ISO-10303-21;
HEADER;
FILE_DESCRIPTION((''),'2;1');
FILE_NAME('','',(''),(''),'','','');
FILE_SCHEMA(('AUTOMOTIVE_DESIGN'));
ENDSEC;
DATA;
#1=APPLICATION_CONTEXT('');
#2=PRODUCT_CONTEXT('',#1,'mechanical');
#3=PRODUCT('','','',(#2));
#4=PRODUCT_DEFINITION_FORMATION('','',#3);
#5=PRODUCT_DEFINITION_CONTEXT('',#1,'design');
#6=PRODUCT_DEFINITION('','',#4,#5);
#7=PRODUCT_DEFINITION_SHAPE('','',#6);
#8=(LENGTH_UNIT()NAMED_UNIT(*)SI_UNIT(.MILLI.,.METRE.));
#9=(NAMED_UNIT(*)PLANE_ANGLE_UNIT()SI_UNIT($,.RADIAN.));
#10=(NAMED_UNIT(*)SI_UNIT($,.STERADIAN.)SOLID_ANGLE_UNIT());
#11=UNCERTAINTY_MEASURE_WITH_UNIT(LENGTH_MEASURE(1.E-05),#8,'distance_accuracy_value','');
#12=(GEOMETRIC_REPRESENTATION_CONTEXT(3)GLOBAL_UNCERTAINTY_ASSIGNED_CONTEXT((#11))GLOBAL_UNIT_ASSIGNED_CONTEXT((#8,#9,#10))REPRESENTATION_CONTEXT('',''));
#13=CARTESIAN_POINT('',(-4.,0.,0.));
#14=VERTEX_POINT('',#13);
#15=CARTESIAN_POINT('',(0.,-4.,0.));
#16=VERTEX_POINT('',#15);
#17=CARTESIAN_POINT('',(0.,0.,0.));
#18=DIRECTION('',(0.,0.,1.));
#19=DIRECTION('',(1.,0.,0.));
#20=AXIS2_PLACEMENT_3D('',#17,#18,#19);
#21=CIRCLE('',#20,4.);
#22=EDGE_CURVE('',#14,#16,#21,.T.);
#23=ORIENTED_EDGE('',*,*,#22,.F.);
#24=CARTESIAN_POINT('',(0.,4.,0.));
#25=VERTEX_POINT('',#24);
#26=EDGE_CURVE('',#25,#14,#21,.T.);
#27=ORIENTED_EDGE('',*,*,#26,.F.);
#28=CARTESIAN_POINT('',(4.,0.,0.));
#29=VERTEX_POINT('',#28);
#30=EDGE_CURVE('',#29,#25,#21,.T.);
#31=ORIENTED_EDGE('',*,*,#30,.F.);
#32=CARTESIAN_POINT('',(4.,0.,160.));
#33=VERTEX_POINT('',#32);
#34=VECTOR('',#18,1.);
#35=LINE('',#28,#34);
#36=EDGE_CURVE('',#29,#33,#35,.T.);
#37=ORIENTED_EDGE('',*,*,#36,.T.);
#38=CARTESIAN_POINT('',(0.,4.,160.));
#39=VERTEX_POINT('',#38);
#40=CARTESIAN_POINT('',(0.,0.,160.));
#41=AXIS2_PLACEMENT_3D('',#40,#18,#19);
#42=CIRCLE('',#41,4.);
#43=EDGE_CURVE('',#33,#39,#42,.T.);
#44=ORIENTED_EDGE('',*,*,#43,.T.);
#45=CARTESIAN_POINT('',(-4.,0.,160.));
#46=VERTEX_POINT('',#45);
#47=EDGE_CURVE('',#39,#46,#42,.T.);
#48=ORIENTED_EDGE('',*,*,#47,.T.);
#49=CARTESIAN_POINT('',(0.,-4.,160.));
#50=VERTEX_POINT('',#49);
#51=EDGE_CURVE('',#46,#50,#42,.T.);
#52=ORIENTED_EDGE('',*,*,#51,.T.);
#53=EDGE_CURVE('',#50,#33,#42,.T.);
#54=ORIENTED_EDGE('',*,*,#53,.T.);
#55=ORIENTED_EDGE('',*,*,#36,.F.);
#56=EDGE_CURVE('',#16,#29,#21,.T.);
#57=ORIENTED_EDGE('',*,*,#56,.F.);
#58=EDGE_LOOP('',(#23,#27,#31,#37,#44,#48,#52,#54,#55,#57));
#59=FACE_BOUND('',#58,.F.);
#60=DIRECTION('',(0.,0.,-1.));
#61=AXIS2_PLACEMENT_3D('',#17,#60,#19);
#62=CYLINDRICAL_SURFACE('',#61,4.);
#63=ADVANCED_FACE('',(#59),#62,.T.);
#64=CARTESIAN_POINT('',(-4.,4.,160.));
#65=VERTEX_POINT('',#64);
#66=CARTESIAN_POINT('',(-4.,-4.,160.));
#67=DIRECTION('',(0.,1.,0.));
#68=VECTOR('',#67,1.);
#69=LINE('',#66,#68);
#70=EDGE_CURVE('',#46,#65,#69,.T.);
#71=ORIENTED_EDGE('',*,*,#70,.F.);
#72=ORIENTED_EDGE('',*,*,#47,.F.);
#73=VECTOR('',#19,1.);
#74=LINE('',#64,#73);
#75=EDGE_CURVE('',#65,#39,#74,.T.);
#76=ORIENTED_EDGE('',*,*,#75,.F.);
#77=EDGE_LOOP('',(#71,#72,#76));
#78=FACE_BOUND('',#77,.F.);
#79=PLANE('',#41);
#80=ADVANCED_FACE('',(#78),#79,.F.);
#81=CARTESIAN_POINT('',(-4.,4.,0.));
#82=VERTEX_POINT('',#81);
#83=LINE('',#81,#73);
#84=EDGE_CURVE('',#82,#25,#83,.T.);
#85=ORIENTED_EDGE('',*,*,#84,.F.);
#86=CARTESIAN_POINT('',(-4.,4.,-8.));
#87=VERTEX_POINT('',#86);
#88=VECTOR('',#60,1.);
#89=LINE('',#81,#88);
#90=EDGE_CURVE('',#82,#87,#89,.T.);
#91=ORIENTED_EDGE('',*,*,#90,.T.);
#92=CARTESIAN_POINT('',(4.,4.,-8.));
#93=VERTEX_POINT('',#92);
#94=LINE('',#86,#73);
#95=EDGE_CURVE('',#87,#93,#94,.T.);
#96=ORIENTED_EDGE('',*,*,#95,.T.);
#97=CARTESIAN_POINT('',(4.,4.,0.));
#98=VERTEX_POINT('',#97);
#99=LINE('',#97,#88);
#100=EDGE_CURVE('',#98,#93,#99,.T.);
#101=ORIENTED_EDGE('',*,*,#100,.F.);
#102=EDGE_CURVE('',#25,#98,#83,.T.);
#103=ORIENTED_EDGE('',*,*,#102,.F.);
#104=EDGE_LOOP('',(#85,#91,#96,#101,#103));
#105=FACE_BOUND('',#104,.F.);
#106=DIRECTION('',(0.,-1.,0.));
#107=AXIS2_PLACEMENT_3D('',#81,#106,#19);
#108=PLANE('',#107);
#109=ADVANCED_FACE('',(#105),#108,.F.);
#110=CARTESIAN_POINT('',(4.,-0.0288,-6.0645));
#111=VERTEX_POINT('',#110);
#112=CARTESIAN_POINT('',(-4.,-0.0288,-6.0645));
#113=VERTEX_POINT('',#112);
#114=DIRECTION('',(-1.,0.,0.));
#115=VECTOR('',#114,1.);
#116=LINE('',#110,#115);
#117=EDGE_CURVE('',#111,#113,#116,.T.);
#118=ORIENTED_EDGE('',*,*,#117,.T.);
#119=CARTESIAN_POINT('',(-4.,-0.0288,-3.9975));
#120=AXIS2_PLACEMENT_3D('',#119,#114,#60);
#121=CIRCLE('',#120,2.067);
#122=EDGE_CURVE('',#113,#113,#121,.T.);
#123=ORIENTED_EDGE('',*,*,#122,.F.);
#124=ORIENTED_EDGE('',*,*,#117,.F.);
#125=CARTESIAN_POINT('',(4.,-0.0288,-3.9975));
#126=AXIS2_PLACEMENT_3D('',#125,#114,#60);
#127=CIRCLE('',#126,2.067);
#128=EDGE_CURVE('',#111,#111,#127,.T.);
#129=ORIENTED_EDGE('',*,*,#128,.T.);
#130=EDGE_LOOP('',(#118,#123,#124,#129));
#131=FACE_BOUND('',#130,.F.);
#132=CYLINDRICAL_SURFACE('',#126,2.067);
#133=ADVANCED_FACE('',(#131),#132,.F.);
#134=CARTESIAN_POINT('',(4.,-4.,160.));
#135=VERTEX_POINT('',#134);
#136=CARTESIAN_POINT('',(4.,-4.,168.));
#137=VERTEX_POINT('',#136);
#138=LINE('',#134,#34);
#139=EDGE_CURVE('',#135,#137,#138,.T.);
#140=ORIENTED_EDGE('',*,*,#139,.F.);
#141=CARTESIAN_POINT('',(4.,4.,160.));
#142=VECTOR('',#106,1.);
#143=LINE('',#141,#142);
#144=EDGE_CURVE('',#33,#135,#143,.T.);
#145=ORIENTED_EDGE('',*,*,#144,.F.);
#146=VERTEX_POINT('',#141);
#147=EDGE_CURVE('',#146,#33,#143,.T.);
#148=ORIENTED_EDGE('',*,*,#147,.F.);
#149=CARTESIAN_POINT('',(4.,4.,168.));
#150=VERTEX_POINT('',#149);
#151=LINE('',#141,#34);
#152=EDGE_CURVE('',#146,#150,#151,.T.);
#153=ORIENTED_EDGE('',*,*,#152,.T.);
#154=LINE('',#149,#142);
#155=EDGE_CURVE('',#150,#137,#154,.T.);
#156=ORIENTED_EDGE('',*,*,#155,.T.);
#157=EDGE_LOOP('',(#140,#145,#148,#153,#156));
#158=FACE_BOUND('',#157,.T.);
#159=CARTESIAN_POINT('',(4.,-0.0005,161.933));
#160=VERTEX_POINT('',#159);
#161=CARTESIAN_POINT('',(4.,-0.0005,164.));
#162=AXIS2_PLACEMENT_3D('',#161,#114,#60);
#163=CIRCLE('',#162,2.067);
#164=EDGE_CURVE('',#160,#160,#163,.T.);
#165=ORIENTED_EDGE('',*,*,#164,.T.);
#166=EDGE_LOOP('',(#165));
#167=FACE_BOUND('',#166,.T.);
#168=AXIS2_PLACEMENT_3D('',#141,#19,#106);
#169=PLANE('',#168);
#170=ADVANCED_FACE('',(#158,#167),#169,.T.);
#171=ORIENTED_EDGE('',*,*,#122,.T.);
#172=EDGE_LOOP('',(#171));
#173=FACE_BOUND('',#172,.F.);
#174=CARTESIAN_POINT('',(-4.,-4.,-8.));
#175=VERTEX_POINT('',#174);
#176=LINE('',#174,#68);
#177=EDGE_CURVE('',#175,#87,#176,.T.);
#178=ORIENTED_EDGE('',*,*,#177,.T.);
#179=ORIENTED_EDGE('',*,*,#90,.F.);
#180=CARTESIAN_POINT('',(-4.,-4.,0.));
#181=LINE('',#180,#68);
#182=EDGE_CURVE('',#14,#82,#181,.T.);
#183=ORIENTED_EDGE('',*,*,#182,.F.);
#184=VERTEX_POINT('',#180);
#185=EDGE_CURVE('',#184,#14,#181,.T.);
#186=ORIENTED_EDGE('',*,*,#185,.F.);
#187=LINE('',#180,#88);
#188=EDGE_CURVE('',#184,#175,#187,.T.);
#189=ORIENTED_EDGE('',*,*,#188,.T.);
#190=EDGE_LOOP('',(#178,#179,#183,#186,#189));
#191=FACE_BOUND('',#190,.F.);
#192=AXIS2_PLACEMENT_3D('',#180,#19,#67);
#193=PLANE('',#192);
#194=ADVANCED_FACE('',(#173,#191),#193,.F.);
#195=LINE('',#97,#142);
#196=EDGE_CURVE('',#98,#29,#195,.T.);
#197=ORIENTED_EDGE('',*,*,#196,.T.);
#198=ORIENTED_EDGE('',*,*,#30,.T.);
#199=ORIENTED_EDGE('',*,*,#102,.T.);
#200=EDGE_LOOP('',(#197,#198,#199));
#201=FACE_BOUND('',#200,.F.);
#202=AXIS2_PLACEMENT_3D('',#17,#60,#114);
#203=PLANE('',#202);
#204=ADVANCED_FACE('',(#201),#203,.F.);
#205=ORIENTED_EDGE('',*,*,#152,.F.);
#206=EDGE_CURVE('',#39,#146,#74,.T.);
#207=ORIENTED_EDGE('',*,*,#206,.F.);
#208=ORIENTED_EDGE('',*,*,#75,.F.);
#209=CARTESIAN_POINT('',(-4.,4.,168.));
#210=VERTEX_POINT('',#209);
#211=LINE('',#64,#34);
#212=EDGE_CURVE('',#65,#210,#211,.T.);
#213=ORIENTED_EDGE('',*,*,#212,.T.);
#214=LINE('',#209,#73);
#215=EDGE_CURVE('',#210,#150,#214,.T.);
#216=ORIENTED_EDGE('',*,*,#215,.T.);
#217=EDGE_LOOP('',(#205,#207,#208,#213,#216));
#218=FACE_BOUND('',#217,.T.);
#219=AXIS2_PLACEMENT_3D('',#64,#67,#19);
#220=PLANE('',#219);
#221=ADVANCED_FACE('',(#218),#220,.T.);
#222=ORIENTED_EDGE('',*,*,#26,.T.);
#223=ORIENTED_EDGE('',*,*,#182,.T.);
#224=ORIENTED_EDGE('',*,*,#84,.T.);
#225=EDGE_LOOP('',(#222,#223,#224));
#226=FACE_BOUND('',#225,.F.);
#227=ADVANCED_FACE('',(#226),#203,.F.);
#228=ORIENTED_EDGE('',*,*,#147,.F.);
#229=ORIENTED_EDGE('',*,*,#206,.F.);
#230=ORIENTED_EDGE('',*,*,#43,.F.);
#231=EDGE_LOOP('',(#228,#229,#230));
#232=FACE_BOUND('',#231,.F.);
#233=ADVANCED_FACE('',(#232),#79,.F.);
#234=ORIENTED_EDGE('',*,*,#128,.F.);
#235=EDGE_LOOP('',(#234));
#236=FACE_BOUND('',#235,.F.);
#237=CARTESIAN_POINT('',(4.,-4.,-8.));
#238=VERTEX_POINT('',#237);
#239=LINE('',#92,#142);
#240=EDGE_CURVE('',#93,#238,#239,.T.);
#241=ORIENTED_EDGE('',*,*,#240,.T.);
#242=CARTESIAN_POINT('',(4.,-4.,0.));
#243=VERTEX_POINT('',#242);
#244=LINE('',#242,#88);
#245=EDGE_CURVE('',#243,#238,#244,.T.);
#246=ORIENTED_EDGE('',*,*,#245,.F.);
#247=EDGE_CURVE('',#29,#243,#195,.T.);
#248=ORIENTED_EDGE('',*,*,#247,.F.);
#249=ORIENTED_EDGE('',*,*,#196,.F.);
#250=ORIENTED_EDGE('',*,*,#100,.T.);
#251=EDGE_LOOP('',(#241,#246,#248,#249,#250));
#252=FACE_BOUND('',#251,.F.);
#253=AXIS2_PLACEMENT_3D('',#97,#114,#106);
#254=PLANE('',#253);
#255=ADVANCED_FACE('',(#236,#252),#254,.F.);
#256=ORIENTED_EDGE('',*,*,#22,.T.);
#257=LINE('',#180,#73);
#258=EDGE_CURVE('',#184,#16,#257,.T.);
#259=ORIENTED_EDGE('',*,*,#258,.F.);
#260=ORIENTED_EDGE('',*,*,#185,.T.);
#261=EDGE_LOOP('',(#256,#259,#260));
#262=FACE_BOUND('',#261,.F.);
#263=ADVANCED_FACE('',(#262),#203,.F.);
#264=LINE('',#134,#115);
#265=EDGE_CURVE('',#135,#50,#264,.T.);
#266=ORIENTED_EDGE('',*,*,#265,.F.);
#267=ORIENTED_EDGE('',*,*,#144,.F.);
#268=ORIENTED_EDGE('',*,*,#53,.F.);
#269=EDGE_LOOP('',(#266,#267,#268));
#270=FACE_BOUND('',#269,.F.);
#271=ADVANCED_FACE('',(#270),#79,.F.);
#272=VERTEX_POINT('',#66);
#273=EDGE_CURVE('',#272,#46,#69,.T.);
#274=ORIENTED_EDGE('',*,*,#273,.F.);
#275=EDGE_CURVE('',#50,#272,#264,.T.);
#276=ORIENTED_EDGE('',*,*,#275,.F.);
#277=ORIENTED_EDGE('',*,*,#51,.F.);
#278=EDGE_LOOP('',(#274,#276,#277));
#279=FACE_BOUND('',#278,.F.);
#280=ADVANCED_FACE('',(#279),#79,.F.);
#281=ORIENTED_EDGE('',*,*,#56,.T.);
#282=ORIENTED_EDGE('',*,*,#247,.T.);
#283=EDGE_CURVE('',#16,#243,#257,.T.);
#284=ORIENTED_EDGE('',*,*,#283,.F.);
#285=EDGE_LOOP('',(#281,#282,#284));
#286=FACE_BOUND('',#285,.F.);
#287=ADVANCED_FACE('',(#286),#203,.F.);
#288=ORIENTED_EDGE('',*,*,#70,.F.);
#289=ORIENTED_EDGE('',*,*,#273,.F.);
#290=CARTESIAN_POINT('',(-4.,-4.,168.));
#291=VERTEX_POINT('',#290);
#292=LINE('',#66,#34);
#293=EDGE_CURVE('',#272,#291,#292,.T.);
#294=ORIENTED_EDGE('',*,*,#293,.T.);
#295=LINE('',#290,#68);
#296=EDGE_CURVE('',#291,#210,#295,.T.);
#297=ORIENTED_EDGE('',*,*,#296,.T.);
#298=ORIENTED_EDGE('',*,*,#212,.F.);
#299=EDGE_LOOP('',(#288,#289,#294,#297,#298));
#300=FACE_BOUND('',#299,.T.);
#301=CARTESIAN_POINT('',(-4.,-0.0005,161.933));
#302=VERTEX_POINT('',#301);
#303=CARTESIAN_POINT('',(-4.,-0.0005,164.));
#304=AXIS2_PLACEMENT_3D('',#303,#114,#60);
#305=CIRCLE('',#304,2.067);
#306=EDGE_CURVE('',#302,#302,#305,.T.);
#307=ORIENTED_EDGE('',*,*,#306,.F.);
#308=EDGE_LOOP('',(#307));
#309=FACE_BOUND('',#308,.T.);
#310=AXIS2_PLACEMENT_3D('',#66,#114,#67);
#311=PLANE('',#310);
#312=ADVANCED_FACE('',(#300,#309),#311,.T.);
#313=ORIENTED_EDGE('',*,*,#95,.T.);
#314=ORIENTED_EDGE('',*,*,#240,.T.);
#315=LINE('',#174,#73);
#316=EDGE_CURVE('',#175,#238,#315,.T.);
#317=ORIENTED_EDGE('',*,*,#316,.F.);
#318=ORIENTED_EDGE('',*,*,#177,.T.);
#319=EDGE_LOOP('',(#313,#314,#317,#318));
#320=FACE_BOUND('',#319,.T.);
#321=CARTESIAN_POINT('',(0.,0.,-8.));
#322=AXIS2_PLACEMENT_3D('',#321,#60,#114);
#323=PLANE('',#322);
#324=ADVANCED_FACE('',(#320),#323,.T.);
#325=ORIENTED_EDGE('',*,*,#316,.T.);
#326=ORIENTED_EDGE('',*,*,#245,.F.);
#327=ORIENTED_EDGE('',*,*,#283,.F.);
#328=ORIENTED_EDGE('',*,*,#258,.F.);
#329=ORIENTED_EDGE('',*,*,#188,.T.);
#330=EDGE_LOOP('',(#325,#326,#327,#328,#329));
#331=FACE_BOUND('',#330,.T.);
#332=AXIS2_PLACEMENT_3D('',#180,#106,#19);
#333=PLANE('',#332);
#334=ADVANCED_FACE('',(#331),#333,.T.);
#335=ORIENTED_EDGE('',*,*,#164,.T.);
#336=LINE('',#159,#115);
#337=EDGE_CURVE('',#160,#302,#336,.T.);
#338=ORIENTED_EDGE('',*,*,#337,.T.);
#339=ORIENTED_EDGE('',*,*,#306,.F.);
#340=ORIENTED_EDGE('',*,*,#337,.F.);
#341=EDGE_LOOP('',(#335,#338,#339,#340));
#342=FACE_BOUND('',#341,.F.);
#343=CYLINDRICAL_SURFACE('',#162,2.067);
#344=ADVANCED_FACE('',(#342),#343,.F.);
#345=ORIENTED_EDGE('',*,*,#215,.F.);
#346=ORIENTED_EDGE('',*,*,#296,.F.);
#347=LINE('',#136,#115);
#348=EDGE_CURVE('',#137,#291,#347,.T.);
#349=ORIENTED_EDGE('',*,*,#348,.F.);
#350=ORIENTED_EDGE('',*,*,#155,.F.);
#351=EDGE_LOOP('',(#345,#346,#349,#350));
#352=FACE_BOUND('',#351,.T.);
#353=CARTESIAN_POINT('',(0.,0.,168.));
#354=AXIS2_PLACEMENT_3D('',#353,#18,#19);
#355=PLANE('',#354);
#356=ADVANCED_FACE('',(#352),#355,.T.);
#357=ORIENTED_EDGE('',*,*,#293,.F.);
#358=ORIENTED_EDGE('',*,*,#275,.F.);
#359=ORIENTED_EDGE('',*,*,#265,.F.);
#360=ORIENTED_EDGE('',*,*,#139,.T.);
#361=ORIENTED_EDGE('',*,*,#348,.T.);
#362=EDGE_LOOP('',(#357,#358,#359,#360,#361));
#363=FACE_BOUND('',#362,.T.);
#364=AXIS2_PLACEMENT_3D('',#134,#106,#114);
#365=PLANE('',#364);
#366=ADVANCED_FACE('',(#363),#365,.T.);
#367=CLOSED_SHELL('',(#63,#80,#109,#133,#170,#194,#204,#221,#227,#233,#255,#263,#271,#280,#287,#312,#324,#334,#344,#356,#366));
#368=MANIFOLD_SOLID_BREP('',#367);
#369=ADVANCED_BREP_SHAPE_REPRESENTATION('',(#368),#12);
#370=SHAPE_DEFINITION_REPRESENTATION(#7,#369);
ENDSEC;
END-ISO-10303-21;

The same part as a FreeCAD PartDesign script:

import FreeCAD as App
import Part
import Sketcher


def add_polygon(sketch, points):
    """Adds a closed chain of lines whose ends are joined by coincident constraints."""
    first, n = sketch.GeometryCount, len(points)
    for a, b in zip(points, points[1:] + points[:1]):
        sketch.addGeometry(Part.LineSegment(App.Vector(*a, 0), App.Vector(*b, 0)), False)
    for i in range(n):
        sketch.addConstraint(Sketcher.Constraint("Coincident", first + i, 2, first + (i + 1) % n, 1))

doc = App.newDocument("Part")
body = doc.addObject("PartDesign::Body", "Body")

# Sketch on XY plane
sketch1 = body.newObject("Sketcher::SketchObject", "Sketch")
sketch1.AttachmentSupport = (doc.getObject("XY_Plane"), [""])
sketch1.MapMode = "FlatFace"
sketch1.addGeometry(Part.Circle(App.Vector(0, 0, 0), App.Vector(0, 0, 1), 4), False)
sketch1.addConstraint(Sketcher.Constraint("Coincident", 0, 3, -1, 1))
sketch1.addConstraint(Sketcher.Constraint("Diameter", 0, 8.0))
pad1 = body.newObject("PartDesign::Pad", "Pad")
pad1.Profile = sketch1
pad1.Length = 160

# Sketch on XY plane
sketch2 = body.newObject("Sketcher::SketchObject", "Sketch001")
sketch2.AttachmentSupport = (doc.getObject("XY_Plane"), [""])
sketch2.MapMode = "FlatFace"
sketch2.AttachmentOffset = App.Placement(App.Vector(0, 0, 160), App.Rotation())
add_polygon(sketch2, [(-4, -4), (4, -4), (4, 4), (-4, 4)])  # lines 0-3
sketch2.addConstraint(Sketcher.Constraint("Horizontal", 0))
sketch2.addConstraint(Sketcher.Constraint("Vertical", 1))
sketch2.addConstraint(Sketcher.Constraint("Horizontal", 2))
sketch2.addConstraint(Sketcher.Constraint("Vertical", 3))
sketch2.addConstraint(Sketcher.Constraint("Symmetric", 0, 2, 2, 2, -1, 1))
sketch2.addConstraint(Sketcher.Constraint("Equal", 2, 1))
sketch2.addConstraint(Sketcher.Constraint("DistanceX", 0, 1, 0, 2, 8.0))
pad2 = body.newObject("PartDesign::Pad", "Pad001")
pad2.Profile = sketch2
pad2.Length = 8

# Sketch on XY plane
sketch3 = body.newObject("Sketcher::SketchObject", "Sketch002")
sketch3.AttachmentSupport = (doc.getObject("XY_Plane"), [""])
sketch3.MapMode = "FlatFace"
add_polygon(sketch3, [(4, -4), (-4, -4), (-4, 4), (4, 4)])  # lines 0-3
sketch3.addConstraint(Sketcher.Constraint("Horizontal", 0))
sketch3.addConstraint(Sketcher.Constraint("Vertical", 1))
sketch3.addConstraint(Sketcher.Constraint("Horizontal", 2))
sketch3.addConstraint(Sketcher.Constraint("Vertical", 3))
sketch3.addConstraint(Sketcher.Constraint("Symmetric", 0, 2, 2, 2, -1, 1))
sketch3.addConstraint(Sketcher.Constraint("Equal", 2, 1))
sketch3.addConstraint(Sketcher.Constraint("DistanceX", 0, 2, 0, 1, 8.0))
pad3 = body.newObject("PartDesign::Pad", "Pad002")
pad3.Profile = sketch3
pad3.Length = 8
pad3.Reversed = True

# Sketch on YZ plane
sketch4 = body.newObject("Sketcher::SketchObject", "Sketch003")
sketch4.AttachmentSupport = (doc.getObject("YZ_Plane"), [""])
sketch4.MapMode = "FlatFace"
sketch4.AttachmentOffset = App.Placement(App.Vector(0, 0, 4), App.Rotation())
sketch4.addGeometry(Part.Circle(App.Vector(0, -4, 0), App.Vector(0, 0, 1), 2.1), False)
sketch4.addConstraint(Sketcher.Constraint("Diameter", 0, 4.134))
sketch4.addConstraint(Sketcher.Constraint("DistanceX", 0, 3, -1, 1, 0.0288))
sketch4.addConstraint(Sketcher.Constraint("DistanceY", 0, 3, -1, 1, 3.9975))
doc.recompute()
hole = body.newObject("PartDesign::Hole", "Hole")
hole.Profile = sketch4
hole.ThreadType = "None"
hole.Diameter = 4.134
hole.DepthType = "ThroughAll"

# Sketch on YZ plane
sketch5 = body.newObject("Sketcher::SketchObject", "Sketch004")
sketch5.AttachmentSupport = (doc.getObject("YZ_Plane"), [""])
sketch5.MapMode = "FlatFace"
sketch5.AttachmentOffset = App.Placement(App.Vector(0, 0, 4), App.Rotation())
sketch5.addGeometry(Part.Circle(App.Vector(0, 164, 0), App.Vector(0, 0, 1), 2.1), False)
sketch5.addConstraint(Sketcher.Constraint("Diameter", 0, 4.134))
sketch5.addConstraint(Sketcher.Constraint("DistanceY", -1, 1, 0, 3, 164.0))
sketch5.addConstraint(Sketcher.Constraint("DistanceX", 0, 3, -1, 1, 0.0005))
doc.recompute()
hole2 = body.newObject("PartDesign::Hole", "Hole001")
hole2.Profile = sketch5
hole2.ThreadType = "None"
hole2.Diameter = 4.134
hole2.DepthType = "ThroughAll"

doc.recompute()
